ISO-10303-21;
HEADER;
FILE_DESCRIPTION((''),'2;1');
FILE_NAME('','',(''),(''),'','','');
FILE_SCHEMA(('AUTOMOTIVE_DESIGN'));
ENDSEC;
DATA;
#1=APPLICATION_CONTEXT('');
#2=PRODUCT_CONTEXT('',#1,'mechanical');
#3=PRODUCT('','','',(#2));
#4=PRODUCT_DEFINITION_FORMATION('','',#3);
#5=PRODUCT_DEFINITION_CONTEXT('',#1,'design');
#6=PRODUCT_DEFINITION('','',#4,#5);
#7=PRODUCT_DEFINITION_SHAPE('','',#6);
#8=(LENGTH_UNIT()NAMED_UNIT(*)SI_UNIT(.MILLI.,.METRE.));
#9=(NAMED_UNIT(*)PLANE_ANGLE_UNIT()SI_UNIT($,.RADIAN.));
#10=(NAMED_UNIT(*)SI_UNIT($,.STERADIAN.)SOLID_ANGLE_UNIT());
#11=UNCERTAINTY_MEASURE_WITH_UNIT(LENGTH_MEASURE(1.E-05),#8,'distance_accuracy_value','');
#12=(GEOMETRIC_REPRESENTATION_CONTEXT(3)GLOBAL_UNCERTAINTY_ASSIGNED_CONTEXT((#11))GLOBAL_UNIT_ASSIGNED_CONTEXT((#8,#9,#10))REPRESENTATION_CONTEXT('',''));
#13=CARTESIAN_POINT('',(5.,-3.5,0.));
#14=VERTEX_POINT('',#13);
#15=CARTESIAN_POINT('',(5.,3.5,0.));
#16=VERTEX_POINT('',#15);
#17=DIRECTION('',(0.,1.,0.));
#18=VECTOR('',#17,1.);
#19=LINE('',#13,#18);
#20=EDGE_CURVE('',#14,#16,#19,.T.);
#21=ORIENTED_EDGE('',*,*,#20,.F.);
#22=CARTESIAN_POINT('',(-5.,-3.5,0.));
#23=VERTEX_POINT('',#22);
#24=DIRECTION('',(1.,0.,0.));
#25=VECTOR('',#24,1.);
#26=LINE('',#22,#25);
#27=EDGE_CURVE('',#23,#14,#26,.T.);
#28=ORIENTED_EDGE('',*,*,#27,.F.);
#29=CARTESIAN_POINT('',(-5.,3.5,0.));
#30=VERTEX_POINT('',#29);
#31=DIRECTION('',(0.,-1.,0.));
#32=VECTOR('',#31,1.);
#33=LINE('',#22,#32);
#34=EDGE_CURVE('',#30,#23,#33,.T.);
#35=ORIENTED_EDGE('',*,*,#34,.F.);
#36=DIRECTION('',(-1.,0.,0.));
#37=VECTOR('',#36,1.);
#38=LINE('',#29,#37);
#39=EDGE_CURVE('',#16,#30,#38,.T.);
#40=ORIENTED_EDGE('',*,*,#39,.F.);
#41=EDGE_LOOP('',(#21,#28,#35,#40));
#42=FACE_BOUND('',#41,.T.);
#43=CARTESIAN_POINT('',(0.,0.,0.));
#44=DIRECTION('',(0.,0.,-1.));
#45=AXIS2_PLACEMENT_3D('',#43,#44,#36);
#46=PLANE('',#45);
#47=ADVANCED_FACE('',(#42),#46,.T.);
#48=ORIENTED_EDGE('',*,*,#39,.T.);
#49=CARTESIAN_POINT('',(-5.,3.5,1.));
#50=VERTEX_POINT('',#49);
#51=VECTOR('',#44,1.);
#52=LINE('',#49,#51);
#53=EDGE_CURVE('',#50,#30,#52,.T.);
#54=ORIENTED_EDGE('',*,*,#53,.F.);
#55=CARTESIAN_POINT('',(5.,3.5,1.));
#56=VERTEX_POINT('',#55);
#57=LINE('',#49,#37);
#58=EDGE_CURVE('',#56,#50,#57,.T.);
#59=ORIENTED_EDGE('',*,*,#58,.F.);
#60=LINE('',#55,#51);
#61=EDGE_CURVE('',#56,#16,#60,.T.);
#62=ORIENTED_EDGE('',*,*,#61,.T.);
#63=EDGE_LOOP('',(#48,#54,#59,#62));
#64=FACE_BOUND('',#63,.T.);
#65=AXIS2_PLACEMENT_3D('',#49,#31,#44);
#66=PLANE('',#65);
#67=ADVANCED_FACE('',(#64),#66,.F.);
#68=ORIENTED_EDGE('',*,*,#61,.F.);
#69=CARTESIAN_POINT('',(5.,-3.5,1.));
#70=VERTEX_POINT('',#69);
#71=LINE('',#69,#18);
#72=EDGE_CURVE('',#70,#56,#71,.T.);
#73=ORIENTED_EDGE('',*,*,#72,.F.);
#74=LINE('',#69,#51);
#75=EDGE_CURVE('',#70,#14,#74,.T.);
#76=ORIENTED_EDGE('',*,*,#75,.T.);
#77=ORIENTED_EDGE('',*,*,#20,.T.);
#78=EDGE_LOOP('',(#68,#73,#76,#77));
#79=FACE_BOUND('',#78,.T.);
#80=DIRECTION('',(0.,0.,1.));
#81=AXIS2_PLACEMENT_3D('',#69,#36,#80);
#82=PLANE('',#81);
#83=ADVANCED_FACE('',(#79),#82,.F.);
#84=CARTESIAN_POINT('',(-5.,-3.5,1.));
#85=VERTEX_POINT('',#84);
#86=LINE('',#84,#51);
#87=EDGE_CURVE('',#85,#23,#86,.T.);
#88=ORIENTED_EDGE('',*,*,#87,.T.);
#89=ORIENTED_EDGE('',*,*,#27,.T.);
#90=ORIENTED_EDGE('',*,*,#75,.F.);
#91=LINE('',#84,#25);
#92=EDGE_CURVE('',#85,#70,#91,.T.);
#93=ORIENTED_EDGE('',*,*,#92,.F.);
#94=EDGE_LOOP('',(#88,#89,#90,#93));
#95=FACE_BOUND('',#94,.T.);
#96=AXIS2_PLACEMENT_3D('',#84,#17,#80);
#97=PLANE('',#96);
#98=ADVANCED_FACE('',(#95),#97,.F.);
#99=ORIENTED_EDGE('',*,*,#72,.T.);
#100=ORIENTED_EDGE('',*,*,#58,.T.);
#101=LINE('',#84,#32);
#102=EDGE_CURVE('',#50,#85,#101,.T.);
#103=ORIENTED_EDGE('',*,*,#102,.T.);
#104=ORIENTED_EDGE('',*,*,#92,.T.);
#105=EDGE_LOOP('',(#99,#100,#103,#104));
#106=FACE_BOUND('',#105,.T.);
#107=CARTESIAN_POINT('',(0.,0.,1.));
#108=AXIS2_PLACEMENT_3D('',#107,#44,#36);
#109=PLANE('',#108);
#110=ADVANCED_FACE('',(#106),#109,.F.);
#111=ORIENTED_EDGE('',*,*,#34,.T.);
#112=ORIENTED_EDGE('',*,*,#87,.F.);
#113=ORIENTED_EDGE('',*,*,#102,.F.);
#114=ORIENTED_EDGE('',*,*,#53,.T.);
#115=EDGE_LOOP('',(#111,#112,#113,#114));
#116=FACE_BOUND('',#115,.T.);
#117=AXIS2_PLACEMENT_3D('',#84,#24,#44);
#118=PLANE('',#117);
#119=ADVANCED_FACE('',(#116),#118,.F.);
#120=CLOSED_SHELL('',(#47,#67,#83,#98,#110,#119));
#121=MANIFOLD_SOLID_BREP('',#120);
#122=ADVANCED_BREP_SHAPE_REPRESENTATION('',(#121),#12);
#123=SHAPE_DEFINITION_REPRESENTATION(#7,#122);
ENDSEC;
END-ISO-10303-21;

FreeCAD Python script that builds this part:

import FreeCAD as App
import Part
import Sketcher


def add_polygon(sketch, points):
    """Adds a closed chain of lines whose ends are joined by coincident constraints."""
    first, n = sketch.GeometryCount, len(points)
    for a, b in zip(points, points[1:] + points[:1]):
        sketch.addGeometry(Part.LineSegment(App.Vector(*a, 0), App.Vector(*b, 0)), False)
    for i in range(n):
        sketch.addConstraint(Sketcher.Constraint("Coincident", first + i, 2, first + (i + 1) % n, 1))

doc = App.newDocument("Part")
body = doc.addObject("PartDesign::Body", "Body")

sketch1 = body.newObject("Sketcher::SketchObject", "Sketch")
sketch1.AttachmentSupport = (doc.getObject("XY_Plane"), [""])
sketch1.MapMode = "FlatFace"
add_polygon(sketch1, [(-5, 4), (-5, -4), (5, -4), (5, 4)])
sketch1.addConstraint(Sketcher.Constraint("Vertical", 0))
sketch1.addConstraint(Sketcher.Constraint("Horizontal", 1))
sketch1.addConstraint(Sketcher.Constraint("Vertical", 2))
sketch1.addConstraint(Sketcher.Constraint("Horizontal", 3))
sketch1.addConstraint(Sketcher.Constraint("Symmetric", 0, 2, 2, 2, -1, 1))
sketch1.addConstraint(Sketcher.Constraint("DistanceX", 1, 1, 1, 2, 10.0))
sketch1.addConstraint(Sketcher.Constraint("DistanceY", 0, 2, 0, 1, 7.0))
pad1 = body.newObject("PartDesign::Pad", "Pad")
pad1.Profile = sketch1
pad1.Length = 1

doc.recompute()
